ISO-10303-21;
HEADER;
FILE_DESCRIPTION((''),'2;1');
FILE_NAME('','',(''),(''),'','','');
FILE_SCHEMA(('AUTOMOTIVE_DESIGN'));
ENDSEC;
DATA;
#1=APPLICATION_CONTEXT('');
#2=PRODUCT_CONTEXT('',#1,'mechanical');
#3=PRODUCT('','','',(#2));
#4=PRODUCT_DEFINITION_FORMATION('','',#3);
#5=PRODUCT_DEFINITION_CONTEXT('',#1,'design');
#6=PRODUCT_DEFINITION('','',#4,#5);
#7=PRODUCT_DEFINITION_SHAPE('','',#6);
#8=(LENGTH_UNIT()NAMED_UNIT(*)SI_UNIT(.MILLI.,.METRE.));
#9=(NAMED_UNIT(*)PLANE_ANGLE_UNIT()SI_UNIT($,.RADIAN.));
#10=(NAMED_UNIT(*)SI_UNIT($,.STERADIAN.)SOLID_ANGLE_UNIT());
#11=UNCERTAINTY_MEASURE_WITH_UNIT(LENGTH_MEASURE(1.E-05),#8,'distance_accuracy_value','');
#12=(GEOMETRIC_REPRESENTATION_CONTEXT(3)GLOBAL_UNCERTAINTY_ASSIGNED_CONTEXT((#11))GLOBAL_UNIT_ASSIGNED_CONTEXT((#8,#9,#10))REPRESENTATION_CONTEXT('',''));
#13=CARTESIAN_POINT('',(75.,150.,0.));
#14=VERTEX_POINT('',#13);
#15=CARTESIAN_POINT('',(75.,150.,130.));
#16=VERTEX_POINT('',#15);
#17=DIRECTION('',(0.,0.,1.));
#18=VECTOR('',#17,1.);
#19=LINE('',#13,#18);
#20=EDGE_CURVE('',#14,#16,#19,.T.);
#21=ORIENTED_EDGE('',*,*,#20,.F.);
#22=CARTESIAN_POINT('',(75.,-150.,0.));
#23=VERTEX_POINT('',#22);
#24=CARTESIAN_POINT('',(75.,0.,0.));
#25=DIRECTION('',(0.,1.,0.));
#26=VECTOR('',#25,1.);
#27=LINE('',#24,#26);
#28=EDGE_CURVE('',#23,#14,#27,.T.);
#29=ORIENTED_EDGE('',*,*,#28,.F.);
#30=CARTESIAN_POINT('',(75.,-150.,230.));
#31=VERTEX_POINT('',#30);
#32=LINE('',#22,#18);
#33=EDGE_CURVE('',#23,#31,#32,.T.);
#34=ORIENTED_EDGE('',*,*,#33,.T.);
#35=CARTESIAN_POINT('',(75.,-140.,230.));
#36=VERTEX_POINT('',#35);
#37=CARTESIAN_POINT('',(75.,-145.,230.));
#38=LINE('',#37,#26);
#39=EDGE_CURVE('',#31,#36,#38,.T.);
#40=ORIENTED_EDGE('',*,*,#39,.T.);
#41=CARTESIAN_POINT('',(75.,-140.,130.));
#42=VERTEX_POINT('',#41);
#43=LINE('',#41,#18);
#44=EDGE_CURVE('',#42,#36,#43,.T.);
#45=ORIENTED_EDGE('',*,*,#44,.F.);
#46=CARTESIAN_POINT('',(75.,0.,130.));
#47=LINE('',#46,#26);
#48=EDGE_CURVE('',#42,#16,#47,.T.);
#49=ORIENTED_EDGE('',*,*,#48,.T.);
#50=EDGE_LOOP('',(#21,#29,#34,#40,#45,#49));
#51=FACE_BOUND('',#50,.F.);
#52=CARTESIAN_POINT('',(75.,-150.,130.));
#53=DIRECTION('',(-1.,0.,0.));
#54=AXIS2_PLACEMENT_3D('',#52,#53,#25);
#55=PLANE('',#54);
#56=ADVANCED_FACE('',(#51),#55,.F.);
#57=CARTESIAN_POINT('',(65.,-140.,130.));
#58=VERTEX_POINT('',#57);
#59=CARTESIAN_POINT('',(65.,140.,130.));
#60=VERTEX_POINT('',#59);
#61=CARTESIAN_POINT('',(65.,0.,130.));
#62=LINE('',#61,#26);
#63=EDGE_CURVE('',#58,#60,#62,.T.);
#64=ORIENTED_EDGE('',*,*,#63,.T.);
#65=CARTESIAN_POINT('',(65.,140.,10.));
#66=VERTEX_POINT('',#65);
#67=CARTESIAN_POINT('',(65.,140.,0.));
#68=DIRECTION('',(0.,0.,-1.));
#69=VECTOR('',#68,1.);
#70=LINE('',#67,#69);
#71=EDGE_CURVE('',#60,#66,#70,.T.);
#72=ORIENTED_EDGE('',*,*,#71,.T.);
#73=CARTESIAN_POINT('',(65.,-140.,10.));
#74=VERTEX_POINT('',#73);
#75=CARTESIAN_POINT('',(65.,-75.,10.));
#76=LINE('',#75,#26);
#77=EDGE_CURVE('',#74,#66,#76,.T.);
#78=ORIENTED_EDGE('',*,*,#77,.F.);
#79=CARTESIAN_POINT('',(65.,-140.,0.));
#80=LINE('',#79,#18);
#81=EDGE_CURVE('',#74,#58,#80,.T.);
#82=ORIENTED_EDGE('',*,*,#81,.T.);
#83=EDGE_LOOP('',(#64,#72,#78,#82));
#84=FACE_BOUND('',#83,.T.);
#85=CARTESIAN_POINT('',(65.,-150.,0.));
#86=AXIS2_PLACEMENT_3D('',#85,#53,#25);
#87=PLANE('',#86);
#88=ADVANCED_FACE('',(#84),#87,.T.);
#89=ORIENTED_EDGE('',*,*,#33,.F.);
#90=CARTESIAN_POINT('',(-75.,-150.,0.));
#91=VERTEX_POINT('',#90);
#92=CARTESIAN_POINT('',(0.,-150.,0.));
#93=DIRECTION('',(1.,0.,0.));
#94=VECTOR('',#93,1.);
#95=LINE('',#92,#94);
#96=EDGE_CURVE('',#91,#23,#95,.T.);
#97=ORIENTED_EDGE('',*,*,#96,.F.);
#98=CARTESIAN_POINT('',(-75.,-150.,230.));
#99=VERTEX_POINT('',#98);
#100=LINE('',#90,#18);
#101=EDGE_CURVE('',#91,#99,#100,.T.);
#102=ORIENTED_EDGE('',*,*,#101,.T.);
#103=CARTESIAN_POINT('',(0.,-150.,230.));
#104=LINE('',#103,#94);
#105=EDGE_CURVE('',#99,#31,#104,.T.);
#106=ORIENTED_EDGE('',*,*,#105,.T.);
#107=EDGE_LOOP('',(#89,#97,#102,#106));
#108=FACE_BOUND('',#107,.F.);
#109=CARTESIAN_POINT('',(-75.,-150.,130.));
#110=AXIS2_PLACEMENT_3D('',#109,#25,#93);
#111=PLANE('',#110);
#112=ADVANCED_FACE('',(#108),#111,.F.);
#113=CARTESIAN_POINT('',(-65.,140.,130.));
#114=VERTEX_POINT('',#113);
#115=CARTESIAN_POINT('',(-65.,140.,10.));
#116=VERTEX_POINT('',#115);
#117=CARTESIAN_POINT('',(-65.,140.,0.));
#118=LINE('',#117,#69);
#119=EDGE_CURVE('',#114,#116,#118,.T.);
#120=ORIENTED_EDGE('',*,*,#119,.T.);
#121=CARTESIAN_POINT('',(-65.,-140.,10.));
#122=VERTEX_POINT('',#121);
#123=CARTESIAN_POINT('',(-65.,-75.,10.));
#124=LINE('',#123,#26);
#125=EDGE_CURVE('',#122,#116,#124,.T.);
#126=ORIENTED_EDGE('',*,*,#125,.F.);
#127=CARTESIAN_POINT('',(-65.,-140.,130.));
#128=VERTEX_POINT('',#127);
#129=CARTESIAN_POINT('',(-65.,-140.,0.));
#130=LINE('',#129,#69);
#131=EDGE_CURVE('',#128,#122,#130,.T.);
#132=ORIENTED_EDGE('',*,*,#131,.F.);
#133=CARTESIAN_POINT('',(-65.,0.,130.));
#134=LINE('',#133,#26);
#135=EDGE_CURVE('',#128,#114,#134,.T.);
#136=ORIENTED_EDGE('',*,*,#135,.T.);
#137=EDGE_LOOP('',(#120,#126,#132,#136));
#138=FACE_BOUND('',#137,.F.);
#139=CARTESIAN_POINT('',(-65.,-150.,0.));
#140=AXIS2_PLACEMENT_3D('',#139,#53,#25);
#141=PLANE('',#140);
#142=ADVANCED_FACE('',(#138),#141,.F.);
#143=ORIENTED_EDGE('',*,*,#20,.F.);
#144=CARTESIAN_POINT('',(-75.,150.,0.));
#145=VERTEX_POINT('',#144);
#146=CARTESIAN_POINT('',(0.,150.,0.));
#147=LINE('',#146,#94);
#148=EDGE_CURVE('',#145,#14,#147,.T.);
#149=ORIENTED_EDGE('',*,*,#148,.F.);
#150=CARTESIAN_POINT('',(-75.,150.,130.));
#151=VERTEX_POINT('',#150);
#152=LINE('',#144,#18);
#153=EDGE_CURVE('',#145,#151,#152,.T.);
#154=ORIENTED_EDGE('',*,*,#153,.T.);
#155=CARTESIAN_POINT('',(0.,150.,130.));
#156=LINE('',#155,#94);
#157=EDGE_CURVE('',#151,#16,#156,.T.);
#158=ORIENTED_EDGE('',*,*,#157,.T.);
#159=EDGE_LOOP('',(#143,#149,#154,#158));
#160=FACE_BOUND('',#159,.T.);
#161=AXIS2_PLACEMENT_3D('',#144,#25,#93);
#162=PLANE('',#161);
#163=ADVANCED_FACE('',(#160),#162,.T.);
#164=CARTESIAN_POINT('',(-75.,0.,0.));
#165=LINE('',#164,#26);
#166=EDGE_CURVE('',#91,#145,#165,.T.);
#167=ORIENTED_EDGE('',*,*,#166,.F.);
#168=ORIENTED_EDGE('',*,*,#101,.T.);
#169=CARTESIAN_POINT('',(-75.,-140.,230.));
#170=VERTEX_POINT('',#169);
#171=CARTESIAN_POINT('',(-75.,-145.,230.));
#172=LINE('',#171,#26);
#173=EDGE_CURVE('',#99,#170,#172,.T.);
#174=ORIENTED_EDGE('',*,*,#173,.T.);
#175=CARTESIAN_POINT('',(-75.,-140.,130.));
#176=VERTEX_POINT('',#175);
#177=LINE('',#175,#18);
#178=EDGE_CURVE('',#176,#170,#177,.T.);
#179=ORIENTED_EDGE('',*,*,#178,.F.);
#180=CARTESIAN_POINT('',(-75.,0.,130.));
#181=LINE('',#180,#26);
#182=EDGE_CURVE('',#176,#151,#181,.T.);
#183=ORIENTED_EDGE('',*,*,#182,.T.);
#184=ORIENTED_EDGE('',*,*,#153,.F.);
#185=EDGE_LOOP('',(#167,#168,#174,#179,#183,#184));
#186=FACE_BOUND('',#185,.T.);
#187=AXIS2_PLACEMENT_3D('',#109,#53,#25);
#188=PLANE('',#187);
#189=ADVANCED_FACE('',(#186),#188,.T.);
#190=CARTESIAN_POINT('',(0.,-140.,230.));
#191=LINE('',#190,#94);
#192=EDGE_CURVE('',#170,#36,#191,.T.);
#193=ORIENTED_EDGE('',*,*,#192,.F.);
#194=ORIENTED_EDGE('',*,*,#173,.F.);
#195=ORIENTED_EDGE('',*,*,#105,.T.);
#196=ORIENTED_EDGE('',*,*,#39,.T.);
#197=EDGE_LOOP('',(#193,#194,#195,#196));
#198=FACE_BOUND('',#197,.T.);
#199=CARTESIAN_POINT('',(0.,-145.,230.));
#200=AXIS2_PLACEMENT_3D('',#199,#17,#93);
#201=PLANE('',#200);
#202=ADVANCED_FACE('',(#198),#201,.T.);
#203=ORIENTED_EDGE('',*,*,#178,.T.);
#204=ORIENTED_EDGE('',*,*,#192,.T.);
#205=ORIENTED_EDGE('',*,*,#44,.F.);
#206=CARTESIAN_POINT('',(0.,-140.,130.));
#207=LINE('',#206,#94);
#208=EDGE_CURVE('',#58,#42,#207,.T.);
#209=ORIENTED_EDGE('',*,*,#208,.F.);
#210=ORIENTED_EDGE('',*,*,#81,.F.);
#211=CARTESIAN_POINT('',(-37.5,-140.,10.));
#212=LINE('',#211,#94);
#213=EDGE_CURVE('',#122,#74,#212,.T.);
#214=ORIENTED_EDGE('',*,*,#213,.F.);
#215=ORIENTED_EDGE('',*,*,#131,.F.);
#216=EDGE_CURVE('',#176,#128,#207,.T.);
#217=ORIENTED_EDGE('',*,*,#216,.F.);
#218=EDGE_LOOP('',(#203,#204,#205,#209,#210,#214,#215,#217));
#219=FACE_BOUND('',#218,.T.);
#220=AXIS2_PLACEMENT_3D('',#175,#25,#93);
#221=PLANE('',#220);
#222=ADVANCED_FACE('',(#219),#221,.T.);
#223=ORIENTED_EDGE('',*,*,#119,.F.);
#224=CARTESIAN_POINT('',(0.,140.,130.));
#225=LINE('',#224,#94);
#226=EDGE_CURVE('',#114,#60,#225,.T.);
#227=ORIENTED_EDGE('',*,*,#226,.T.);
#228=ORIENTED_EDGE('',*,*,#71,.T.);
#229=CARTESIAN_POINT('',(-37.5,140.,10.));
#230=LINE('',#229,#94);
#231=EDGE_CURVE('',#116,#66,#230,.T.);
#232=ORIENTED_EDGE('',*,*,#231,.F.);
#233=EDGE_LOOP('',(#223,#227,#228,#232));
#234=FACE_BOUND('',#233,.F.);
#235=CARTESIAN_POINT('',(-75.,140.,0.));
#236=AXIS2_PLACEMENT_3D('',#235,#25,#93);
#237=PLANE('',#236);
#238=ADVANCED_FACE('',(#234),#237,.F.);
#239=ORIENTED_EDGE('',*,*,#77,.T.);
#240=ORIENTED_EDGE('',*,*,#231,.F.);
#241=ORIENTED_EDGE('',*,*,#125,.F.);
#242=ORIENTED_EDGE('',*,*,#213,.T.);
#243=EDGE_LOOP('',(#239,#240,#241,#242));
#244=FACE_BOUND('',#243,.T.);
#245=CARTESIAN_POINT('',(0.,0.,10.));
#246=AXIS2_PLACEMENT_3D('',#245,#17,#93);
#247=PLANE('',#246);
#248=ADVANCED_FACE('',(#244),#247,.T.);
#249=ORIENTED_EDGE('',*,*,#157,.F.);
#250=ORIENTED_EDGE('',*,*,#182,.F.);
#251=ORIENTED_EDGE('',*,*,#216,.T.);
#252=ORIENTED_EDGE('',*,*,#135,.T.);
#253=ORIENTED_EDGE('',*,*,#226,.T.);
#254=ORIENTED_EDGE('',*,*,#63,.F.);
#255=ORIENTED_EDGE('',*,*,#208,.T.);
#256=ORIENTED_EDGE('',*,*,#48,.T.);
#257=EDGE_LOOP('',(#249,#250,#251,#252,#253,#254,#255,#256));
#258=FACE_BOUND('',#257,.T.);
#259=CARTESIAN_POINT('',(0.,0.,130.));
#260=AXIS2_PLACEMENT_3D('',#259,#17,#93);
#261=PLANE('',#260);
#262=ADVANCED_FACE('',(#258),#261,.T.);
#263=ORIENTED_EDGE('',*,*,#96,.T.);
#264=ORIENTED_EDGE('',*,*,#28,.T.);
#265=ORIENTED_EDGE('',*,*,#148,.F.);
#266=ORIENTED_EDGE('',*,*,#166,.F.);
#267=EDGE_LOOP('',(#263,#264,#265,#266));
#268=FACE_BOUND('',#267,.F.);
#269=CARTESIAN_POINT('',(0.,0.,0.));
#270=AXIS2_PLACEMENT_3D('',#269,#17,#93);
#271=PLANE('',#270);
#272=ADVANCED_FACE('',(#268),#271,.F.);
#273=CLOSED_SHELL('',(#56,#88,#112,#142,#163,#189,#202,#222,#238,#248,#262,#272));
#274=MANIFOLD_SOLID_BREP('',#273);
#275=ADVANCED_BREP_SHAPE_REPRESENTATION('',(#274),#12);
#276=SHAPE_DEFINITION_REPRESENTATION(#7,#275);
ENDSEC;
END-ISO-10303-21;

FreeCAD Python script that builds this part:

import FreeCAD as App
import Part
import Sketcher
Q = App.Units.Quantity


def faces_at(feature, points):
    """Names of the faces that lie closest to the given points."""
    faces = feature.Shape.Faces
    near = lambda p: min(range(len(faces)), key=lambda i: faces[i].distToShape(Part.Vertex(*p))[0])
    return sorted({f"Face{near(p) + 1}" for p in points})


def add_polygon(sketch, points):
    """Adds a closed chain of lines whose ends are joined by coincident constraints."""
    first, n = sketch.GeometryCount, len(points)
    for a, b in zip(points, points[1:] + points[:1]):
        sketch.addGeometry(Part.LineSegment(App.Vector(*a, 0), App.Vector(*b, 0)), False)
    for i in range(n):
        sketch.addConstraint(Sketcher.Constraint("Coincident", first + i, 2, first + (i + 1) % n, 1))

doc = App.newDocument("Part")
params = doc.addObject("Spreadsheet::Sheet", "Params")
for row, (alias, value) in enumerate([
    ("sketch1_width", "150 mm"),
    ("sketch1_height", "300 mm"),
    ("pad1_length", "130 mm"),
    ("thickness_wall", "10 mm"),
    ("sketch2_width", "150 mm"),
    ("sketch2_height", "10 mm"),
    ("pad2_length", "100 mm"),
], start=1):
    params.set(f"A{row}", alias)
    params.set(f"B{row}", "=" + value)
    params.setAlias(f"B{row}", alias)

body = doc.addObject("PartDesign::Body", "Body")

# Sketch on XY plane
sketch1 = doc.addObject("Sketcher::SketchObject", "Sketch")
body.addObject(sketch1)
sketch1.AttachmentSupport = (doc.XY_Plane, [""])
sketch1.MapMode = "FlatFace"
add_polygon(sketch1, [(-75, 150), (-75, -150), (75, -150), (75, 150)])  # lines 0-3
sketch1.addConstraint([
    Sketcher.Constraint("Vertical", 0),
    Sketcher.Constraint("Horizontal", 1),
    Sketcher.Constraint("Vertical", 2),
    Sketcher.Constraint("Horizontal", 3),
    Sketcher.Constraint("Symmetric", 0, 2, 2, 2, -1, 1),
    Sketcher.Constraint("DistanceX", 1, 1, 1, 2, Q("150 mm")),
    Sketcher.Constraint("DistanceY", 0, 2, 0, 1, Q("300 mm")),
])
sketch1.setExpression("Constraints[9]", "Params.sketch1_width")
sketch1.setExpression("Constraints[10]", "Params.sketch1_height")
pad1 = doc.addObject("PartDesign::Pad", "Pad")
body.addObject(pad1)
pad1.Profile = sketch1
pad1.setExpression("Length", "Params.pad1_length")
doc.recompute()

thickness = doc.addObject("PartDesign::Thickness", "Thickness")
body.addObject(thickness)
thickness.Base = (pad1, faces_at(pad1, [(0, 0, 130)]))
thickness.setExpression("Value", "Params.thickness_wall")
thickness.Reversed = True
thickness.Join = "Arc"

# Sketch on XY plane
sketch2 = doc.addObject("Sketcher::SketchObject", "Sketch001")
body.addObject(sketch2)
sketch2.AttachmentSupport = (doc.XY_Plane, [""])
sketch2.MapMode = "FlatFace"
sketch2.AttachmentOffset = App.Placement(App.Vector(0, 0, 130), App.Rotation())
add_polygon(sketch2, [(-75, -140), (-75, -150), (75, -150), (75, -140)])  # lines 0-3
sketch2.addConstraint([
    Sketcher.Constraint("Vertical", 0),
    Sketcher.Constraint("Horizontal", 1),
    Sketcher.Constraint("Vertical", 2),
    Sketcher.Constraint("Horizontal", 3),
    Sketcher.Constraint("DistanceX", 1, 1, 1, 2, Q("150 mm")),
    Sketcher.Constraint("DistanceY", 0, 2, 0, 1, Q("10 mm")),
    Sketcher.Constraint("DistanceX", 0, 2, -1, 1, Q("75 mm")),
    Sketcher.Constraint("DistanceY", 0, 2, -1, 1, Q("150 mm")),
])
sketch2.setExpression("Constraints[8]", "Params.sketch2_width")
sketch2.setExpression("Constraints[9]", "Params.sketch2_height")
pad2 = doc.addObject("PartDesign::Pad", "Pad001")
body.addObject(pad2)
pad2.Profile = sketch2
pad2.setExpression("Length", "Params.pad2_length")

doc.recompute()
